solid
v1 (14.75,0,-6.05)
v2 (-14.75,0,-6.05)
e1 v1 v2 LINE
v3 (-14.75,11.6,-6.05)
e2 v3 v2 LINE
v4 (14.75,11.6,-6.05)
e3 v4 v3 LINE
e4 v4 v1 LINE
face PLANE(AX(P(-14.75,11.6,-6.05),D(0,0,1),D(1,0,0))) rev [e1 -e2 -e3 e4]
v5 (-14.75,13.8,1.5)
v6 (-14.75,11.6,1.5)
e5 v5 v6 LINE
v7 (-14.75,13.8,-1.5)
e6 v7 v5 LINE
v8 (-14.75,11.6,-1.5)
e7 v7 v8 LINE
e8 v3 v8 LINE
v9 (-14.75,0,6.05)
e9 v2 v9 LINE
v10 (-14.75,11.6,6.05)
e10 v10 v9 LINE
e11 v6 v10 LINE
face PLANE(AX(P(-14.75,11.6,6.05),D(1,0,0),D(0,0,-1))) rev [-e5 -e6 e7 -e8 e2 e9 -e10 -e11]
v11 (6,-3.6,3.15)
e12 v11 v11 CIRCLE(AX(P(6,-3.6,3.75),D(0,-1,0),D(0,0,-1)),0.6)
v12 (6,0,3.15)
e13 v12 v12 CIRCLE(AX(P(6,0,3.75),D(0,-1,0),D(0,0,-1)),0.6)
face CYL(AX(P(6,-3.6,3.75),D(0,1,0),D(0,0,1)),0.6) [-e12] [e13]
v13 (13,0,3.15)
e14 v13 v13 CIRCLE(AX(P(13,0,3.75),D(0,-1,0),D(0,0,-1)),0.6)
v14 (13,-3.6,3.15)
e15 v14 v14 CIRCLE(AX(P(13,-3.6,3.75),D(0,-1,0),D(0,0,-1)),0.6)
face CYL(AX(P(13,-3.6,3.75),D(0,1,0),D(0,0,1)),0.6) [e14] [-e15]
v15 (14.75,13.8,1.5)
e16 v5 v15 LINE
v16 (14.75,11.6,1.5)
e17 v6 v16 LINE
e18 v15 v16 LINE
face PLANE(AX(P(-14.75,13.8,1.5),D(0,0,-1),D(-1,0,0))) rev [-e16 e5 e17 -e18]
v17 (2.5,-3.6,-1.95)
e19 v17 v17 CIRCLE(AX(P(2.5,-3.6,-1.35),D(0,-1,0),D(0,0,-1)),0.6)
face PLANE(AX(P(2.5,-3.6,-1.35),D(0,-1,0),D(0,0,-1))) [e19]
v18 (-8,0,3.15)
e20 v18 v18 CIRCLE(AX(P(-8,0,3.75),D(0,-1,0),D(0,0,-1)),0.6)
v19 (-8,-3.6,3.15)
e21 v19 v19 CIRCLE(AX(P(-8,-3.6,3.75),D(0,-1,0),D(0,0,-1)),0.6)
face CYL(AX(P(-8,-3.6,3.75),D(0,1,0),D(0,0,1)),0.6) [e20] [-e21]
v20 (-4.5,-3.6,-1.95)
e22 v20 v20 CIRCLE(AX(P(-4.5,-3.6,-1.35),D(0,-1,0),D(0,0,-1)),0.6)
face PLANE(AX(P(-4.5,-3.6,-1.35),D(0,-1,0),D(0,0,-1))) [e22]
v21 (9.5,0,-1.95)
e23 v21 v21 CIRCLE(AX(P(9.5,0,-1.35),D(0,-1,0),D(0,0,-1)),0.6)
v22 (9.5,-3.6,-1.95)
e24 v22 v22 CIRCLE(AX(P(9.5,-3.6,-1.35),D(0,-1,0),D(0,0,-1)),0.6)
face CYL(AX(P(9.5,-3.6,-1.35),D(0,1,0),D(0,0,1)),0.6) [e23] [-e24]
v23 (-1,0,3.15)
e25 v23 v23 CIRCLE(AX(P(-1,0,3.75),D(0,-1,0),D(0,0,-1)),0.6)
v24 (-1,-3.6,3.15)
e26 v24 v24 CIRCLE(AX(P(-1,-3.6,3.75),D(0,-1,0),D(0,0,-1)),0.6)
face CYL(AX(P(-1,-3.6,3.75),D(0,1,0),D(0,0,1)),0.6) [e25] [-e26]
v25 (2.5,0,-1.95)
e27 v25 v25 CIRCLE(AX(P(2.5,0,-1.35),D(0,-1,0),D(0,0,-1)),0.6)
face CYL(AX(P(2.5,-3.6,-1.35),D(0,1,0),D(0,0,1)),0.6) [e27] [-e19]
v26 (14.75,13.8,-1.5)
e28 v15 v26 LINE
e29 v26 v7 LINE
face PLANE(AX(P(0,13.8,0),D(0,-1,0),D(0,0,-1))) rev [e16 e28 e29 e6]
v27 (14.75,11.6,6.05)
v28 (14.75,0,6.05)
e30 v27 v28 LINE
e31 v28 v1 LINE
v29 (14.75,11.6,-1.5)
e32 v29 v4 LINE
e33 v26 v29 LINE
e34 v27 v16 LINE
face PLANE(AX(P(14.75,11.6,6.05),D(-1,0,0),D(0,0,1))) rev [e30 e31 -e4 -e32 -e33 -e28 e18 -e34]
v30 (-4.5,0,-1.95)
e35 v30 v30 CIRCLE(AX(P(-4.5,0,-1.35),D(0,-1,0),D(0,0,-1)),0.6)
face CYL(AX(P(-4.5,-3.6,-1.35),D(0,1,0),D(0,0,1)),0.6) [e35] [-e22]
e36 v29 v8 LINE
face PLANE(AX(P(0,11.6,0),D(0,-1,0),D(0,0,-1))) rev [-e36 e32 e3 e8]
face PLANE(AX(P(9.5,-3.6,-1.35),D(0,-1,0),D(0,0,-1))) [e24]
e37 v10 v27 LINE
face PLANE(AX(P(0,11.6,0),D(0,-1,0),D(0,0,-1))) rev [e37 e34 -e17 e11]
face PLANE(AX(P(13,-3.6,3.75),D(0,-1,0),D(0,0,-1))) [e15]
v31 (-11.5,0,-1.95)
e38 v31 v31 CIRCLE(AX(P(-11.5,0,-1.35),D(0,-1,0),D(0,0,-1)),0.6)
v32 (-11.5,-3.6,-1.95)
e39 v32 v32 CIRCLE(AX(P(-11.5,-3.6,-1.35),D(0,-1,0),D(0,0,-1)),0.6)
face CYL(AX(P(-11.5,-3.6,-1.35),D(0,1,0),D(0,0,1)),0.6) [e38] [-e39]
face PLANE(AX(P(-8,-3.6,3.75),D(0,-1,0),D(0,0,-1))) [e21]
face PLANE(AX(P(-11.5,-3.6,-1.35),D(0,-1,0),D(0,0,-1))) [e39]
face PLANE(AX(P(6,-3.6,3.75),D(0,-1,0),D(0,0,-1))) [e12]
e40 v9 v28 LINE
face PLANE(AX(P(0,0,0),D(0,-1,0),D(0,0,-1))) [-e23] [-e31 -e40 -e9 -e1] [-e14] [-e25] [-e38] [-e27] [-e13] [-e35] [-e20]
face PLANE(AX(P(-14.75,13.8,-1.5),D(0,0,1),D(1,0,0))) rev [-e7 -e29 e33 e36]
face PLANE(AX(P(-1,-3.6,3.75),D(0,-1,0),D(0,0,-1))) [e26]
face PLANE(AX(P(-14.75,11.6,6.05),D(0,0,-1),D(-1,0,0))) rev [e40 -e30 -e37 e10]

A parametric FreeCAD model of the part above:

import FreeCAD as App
import Part
import Sketcher
from FreeCAD import Vector
Q = App.Units.Quantity

doc = App.newDocument("Part")
params = doc.addObject("Spreadsheet::Sheet", "Params")
for row, (alias, value) in enumerate([
    ("sketch1_width", "29.5 mm"),
    ("sketch1_height", "12.1 mm"),
    ("pad1_length", "11.6 mm"),
    ("sketch2_height", "3 mm"),
    ("sketch2_width", "29.5 mm"),
    ("pad2_length", "2.2 mm"),
    ("sketch3_diameter", "1.2 mm"),
    ("pad3_length", "3.6 mm"),
], start=1):
    params.set(f"A{row}", alias)
    params.set(f"B{row}", "=" + value)
    params.setAlias(f"B{row}", alias)

body = doc.addObject("PartDesign::Body", "Body")

sketch1 = body.newObject("Sketcher::SketchObject", "Sketch")
sketch1.AttachmentSupport = (doc.getObject("XZ_Plane"), [""])
sketch1.MapMode = "FlatFace"
sketch1.addGeometry(Part.LineSegment(Vector(-15, -6, 0), Vector(-15, 6, 0)), False)
sketch1.addGeometry(Part.LineSegment(Vector(-15, 6, 0), Vector(15, 6, 0)), False)
sketch1.addGeometry(Part.LineSegment(Vector(15, 6, 0), Vector(15, -6, 0)), False)
sketch1.addGeometry(Part.LineSegment(Vector(15, -6, 0), Vector(-15, -6, 0)), False)
sketch1.addConstraint(Sketcher.Constraint("Coincident", 0, 2, 1, 1))
sketch1.addConstraint(Sketcher.Constraint("Coincident", 1, 2, 2, 1))
sketch1.addConstraint(Sketcher.Constraint("Coincident", 2, 2, 3, 1))
sketch1.addConstraint(Sketcher.Constraint("Coincident", 3, 2, 0, 1))
sketch1.addConstraint(Sketcher.Constraint("Vertical", 0))
sketch1.addConstraint(Sketcher.Constraint("Horizontal", 1))
sketch1.addConstraint(Sketcher.Constraint("Vertical", 2))
sketch1.addConstraint(Sketcher.Constraint("Horizontal", 3))
sketch1.addConstraint(Sketcher.Constraint("Symmetric", 0, 2, 2, 2, -1, 1))
sketch1.addConstraint(Sketcher.Constraint("DistanceX", 1, 1, 1, 2, Q("29.5 mm")))
sketch1.addConstraint(Sketcher.Constraint("DistanceY", 0, 1, 0, 2, Q("12.1 mm")))
sketch1.setExpression("Constraints[9]", "Params.sketch1_width")
sketch1.setExpression("Constraints[10]", "Params.sketch1_height")
pad1 = body.newObject("PartDesign::Pad", "Pad")
pad1.Profile = sketch1
pad1.setExpression("Length", "Params.pad1_length")
pad1.Reversed = True

sketch2 = body.newObject("Sketcher::SketchObject", "Sketch001")
sketch2.AttachmentSupport = (doc.getObject("XZ_Plane"), [""])
sketch2.MapMode = "FlatFace"
sketch2.AttachmentOffset = App.Placement(Vector(0, 0, -11.6), App.Rotation())
sketch2.addGeometry(Part.LineSegment(Vector(-14.8, -1.5, 0), Vector(-14.8, 1.5, 0)), False)
sketch2.addGeometry(Part.LineSegment(Vector(-14.8, 1.5, 0), Vector(14.8, 1.5, 0)), False)
sketch2.addGeometry(Part.LineSegment(Vector(14.8, 1.5, 0), Vector(14.8, -1.5, 0)), False)
sketch2.addGeometry(Part.LineSegment(Vector(14.8, -1.5, 0), Vector(-14.8, -1.5, 0)), False)
sketch2.addConstraint(Sketcher.Constraint("Coincident", 0, 2, 1, 1))
sketch2.addConstraint(Sketcher.Constraint("Coincident", 1, 2, 2, 1))
sketch2.addConstraint(Sketcher.Constraint("Coincident", 2, 2, 3, 1))
sketch2.addConstraint(Sketcher.Constraint("Coincident", 3, 2, 0, 1))
sketch2.addConstraint(Sketcher.Constraint("Vertical", 0))
sketch2.addConstraint(Sketcher.Constraint("Horizontal", 1))
sketch2.addConstraint(Sketcher.Constraint("Vertical", 2))
sketch2.addConstraint(Sketcher.Constraint("Horizontal", 3))
sketch2.addConstraint(Sketcher.Constraint("Symmetric", 0, 2, 2, 2, -1, 1))
sketch2.addConstraint(Sketcher.Constraint("DistanceY", 0, 1, 0, 2, Q("3 mm")))
sketch2.addConstraint(Sketcher.Constraint("DistanceX", 1, 1, 1, 2, Q("29.5 mm")))
sketch2.setExpression("Constraints[9]", "Params.sketch2_height")
sketch2.setExpression("Constraints[10]", "Params.sketch2_width")
pad2 = body.newObject("PartDesign::Pad", "Pad001")
pad2.Profile = sketch2
pad2.setExpression("Length", "Params.pad2_length")
pad2.Reversed = True

sketch3 = body.newObject("Sketcher::SketchObject", "Sketch002")
sketch3.AttachmentSupport = (doc.getObject("XZ_Plane"), [""])
sketch3.MapMode = "FlatFace"
sketch3.addGeometry(Part.Circle(Vector(-11.5, -1.4, 0), Vector(0, 0, 1), 0.6), False)
sketch3.addGeometry(Part.Circle(Vector(-8, 3.8, 0), Vector(0, 0, 1), 0.6), False)
sketch3.addGeometry(Part.Circle(Vector(-4.5, -1.4, 0), Vector(0, 0, 1), 0.6), False)
sketch3.addGeometry(Part.Circle(Vector(-1, 3.8, 0), Vector(0, 0, 1), 0.6), False)
sketch3.addGeometry(Part.Circle(Vector(2.5, -1.4, 0), Vector(0, 0, 1), 0.6), False)
sketch3.addGeometry(Part.Circle(Vector(6, 3.8, 0), Vector(0, 0, 1), 0.6), False)
sketch3.addGeometry(Part.Circle(Vector(9.5, -1.4, 0), Vector(0, 0, 1), 0.6), False)
sketch3.addGeometry(Part.Circle(Vector(13, 3.8, 0), Vector(0, 0, 1), 0.6), False)
sketch3.addConstraint(Sketcher.Constraint("Equal", 0, 1))
sketch3.addConstraint(Sketcher.Constraint("Equal", 1, 2))
sketch3.addConstraint(Sketcher.Constraint("Equal", 2, 3))
sketch3.addConstraint(Sketcher.Constraint("Equal", 3, 4))
sketch3.addConstraint(Sketcher.Constraint("Equal", 4, 5))
sketch3.addConstraint(Sketcher.Constraint("Equal", 5, 6))
sketch3.addConstraint(Sketcher.Constraint("Equal", 6, 7))
sketch3.addConstraint(Sketcher.Constraint("Horizontal", 0, 3, 2, 3))
sketch3.addConstraint(Sketcher.Constraint("Horizontal", 1, 3, 3, 3))
sketch3.addConstraint(Sketcher.Constraint("Horizontal", 2, 3, 4, 3))
sketch3.addConstraint(Sketcher.Constraint("Horizontal", 3, 3, 5, 3))
sketch3.addConstraint(Sketcher.Constraint("Horizontal", 4, 3, 6, 3))
sketch3.addConstraint(Sketcher.Constraint("Horizontal", 5, 3, 7, 3))
sketch3.addConstraint(Sketcher.Constraint("Diameter", 0, Q("1.2 mm")))
sketch3.addConstraint(Sketcher.Constraint("DistanceX", 1, 3, -1, 1, Q("8 mm")))
sketch3.addConstraint(Sketcher.Constraint("DistanceX", 3, 3, -1, 1, Q("1 mm")))
sketch3.addConstraint(Sketcher.Constraint("DistanceX", -1, 1, 5, 3, Q("6 mm")))
sketch3.addConstraint(Sketcher.Constraint("DistanceX", -1, 1, 7, 3, Q("13 mm")))
sketch3.addConstraint(Sketcher.Constraint("DistanceX", 0, 3, 2, 3, Q("7 mm")))
sketch3.addConstraint(Sketcher.Constraint("DistanceX", 2, 3, 4, 3, Q("7 mm")))
sketch3.addConstraint(Sketcher.Constraint("DistanceX", 4, 3, 6, 3, Q("7 mm")))
sketch3.addConstraint(Sketcher.Constraint("DistanceX", 0, 3, -1, 1, Q("11.5 mm")))
sketch3.addConstraint(Sketcher.Constraint("DistanceY", 0, 3, 1, 3, Q("5.1 mm")))
sketch3.addConstraint(Sketcher.Constraint("DistanceY", 0, 3, -1, 1, Q("1.35 mm")))
sketch3.setExpression("Constraints[13]", "Params.sketch3_diameter")
pad3 = body.newObject("PartDesign::Pad", "Pad002")
pad3.Profile = sketch3
pad3.setExpression("Length", "Params.pad3_length")

doc.recompute()
